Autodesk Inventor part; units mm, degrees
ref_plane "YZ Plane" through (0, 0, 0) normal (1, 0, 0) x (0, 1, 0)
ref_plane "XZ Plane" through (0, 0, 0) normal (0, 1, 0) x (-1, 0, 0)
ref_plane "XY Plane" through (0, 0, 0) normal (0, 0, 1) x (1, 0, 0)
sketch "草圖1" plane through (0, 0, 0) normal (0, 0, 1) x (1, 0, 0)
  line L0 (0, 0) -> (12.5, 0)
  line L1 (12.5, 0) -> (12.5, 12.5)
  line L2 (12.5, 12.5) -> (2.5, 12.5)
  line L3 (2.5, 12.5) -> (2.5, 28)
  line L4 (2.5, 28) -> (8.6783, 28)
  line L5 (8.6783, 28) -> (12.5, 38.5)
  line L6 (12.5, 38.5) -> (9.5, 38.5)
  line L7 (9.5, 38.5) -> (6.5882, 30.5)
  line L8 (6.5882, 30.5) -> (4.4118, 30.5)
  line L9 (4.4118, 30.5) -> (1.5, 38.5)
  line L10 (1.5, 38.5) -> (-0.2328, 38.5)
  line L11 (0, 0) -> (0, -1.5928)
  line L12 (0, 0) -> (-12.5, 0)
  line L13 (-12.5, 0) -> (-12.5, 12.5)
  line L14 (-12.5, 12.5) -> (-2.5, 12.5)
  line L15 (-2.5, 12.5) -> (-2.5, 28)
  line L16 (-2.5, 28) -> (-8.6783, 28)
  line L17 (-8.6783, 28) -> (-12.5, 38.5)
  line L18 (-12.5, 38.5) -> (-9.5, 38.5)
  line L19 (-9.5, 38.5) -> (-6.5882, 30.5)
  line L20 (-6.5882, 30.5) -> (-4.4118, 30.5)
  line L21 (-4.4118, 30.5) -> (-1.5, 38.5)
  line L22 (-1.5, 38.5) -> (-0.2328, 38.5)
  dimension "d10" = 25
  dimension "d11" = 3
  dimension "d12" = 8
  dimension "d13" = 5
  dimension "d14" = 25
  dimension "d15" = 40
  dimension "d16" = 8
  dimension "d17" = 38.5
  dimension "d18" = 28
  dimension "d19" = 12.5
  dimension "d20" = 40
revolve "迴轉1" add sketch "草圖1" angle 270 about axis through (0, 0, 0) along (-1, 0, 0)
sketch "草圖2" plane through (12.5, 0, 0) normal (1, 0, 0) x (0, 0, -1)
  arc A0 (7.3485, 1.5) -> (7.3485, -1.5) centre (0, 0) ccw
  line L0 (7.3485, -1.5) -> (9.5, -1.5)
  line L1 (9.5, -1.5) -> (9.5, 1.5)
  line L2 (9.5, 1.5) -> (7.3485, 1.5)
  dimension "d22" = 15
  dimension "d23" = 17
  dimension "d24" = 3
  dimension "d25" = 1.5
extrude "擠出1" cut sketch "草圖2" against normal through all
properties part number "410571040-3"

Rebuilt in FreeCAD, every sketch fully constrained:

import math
import FreeCAD as App
import Part
import Sketcher

V = App.Vector
Q = App.Units.Quantity

doc = App.newDocument("Part")
body = doc.addObject("PartDesign::Body", "Body")

# Sketch on XY plane
sketch1 = body.newObject("Sketcher::SketchObject", "Sketch")
sketch1.AttachmentSupport = (doc.getObject("XY_Plane"), [""])
sketch1.MapMode = "FlatFace"
sketch1.addGeometry([
    Part.LineSegment(V(-12.5, 0, 0), V(12.5, 0, 0)),  # 0
    Part.LineSegment(V(12.5, 0, 0), V(12.5, 12.5, 0)),  # 1
    Part.LineSegment(V(12.5, 12.5, 0), V(2.5, 12.5, 0)),  # 2
    Part.LineSegment(V(2.5, 12.5, 0), V(2.5, 28, 0)),  # 3
    Part.LineSegment(V(2.5, 28, 0), V(8.7, 28, 0)),  # 4
    Part.LineSegment(V(8.7, 28, 0), V(12.5, 38.5, 0)),  # 5
    Part.LineSegment(V(12.5, 38.5, 0), V(9.5, 38.5, 0)),  # 6
    Part.LineSegment(V(9.5, 38.5, 0), V(6.6, 30.5, 0)),  # 7
    Part.LineSegment(V(6.6, 30.5, 0), V(4.4, 30.5, 0)),  # 8
    Part.LineSegment(V(4.4, 30.5, 0), V(1.5, 38.5, 0)),  # 9
    Part.LineSegment(V(1.5, 38.5, 0), V(-1.5, 38.5, 0)),  # 10
    Part.LineSegment(V(-1.5, 38.5, 0), V(-4.4, 30.5, 0)),  # 11
    Part.LineSegment(V(-4.4, 30.5, 0), V(-6.6, 30.5, 0)),  # 12
    Part.LineSegment(V(-6.6, 30.5, 0), V(-9.5, 38.5, 0)),  # 13
    Part.LineSegment(V(-9.5, 38.5, 0), V(-12.5, 38.5, 0)),  # 14
    Part.LineSegment(V(-12.5, 38.5, 0), V(-8.7, 28, 0)),  # 15
    Part.LineSegment(V(-8.7, 28, 0), V(-2.5, 28, 0)),  # 16
    Part.LineSegment(V(-2.5, 28, 0), V(-2.5, 12.5, 0)),  # 17
    Part.LineSegment(V(-2.5, 12.5, 0), V(-12.5, 12.5, 0)),  # 18
    Part.LineSegment(V(-12.5, 12.5, 0), V(-12.5, 0, 0)),  # 19
], False)
sketch1.addConstraint([
    Sketcher.Constraint("Coincident", 0, 2, 1, 1),
    Sketcher.Constraint("Coincident", 1, 2, 2, 1),
    Sketcher.Constraint("Coincident", 2, 2, 3, 1),
    Sketcher.Constraint("Coincident", 3, 2, 4, 1),
    Sketcher.Constraint("Coincident", 4, 2, 5, 1),
    Sketcher.Constraint("Coincident", 5, 2, 6, 1),
    Sketcher.Constraint("Coincident", 6, 2, 7, 1),
    Sketcher.Constraint("Coincident", 7, 2, 8, 1),
    Sketcher.Constraint("Coincident", 8, 2, 9, 1),
    Sketcher.Constraint("Coincident", 9, 2, 10, 1),
    Sketcher.Constraint("Coincident", 10, 2, 11, 1),
    Sketcher.Constraint("Coincident", 11, 2, 12, 1),
    Sketcher.Constraint("Coincident", 12, 2, 13, 1),
    Sketcher.Constraint("Coincident", 13, 2, 14, 1),
    Sketcher.Constraint("Coincident", 14, 2, 15, 1),
    Sketcher.Constraint("Coincident", 15, 2, 16, 1),
    Sketcher.Constraint("Coincident", 16, 2, 17, 1),
    Sketcher.Constraint("Coincident", 17, 2, 18, 1),
    Sketcher.Constraint("Coincident", 18, 2, 19, 1),
    Sketcher.Constraint("Coincident", 19, 2, 0, 1),
    Sketcher.Constraint("Horizontal", 0),
    Sketcher.Constraint("Vertical", 1),
    Sketcher.Constraint("Horizontal", 2),
    Sketcher.Constraint("Vertical", 3),
    Sketcher.Constraint("Horizontal", 4),
    Sketcher.Constraint("Horizontal", 6),
    Sketcher.Constraint("Horizontal", 8),
    Sketcher.Constraint("Horizontal", 10),
    Sketcher.Constraint("Horizontal", 12),
    Sketcher.Constraint("Horizontal", 14),
    Sketcher.Constraint("Horizontal", 16),
    Sketcher.Constraint("Vertical", 17),
    Sketcher.Constraint("Horizontal", 18),
    Sketcher.Constraint("Vertical", 19),
    Sketcher.Constraint("Symmetric", 0, 2, 19, 2, -1, 1),
    Sketcher.Constraint("Symmetric", 8, 2, 11, 2, -2),
    Sketcher.Constraint("Symmetric", 6, 2, 13, 2, -2),
    Sketcher.Constraint("Symmetric", 4, 2, 15, 2, -2),
    Sketcher.Constraint("Symmetric", 2, 2, 17, 2, -2),
    Sketcher.Constraint("Parallel", 5, 7),
    Sketcher.Constraint("Parallel", 7, 11),
    Sketcher.Constraint("Parallel", 9, 13),
    Sketcher.Constraint("Parallel", 13, 15),
    Sketcher.Constraint("Horizontal", 6, 2, 9, 2),
    Sketcher.Constraint("Vertical", 1, 2, 5, 2),
    Sketcher.Constraint("Vertical", 14, 2, 18, 2),
    Sketcher.Constraint("Equal", 6, 10),
    Sketcher.Constraint("DistanceX", 0, 1, 0, 2, Q("25 mm")),
    Sketcher.Constraint("DistanceX", 6, 2, 6, 1, Q("3 mm")),
    Sketcher.Constraint("DistanceY", 1, 1, 1, 2, Q("12.5 mm")),
    Sketcher.Constraint("DistanceY", -1, 1, 3, 2, Q("28 mm")),
    Sketcher.Constraint("DistanceY", 7, 2, 6, 2, Q("8 mm")),
    Sketcher.Constraint("DistanceX", 16, 2, 3, 2, Q("5 mm")),
    Sketcher.Constraint("DistanceY", -1, 1, 5, 2, Q("38.5 mm")),
    Sketcher.Constraint("Angle", 5, Q("70 deg")),
])
revolution = body.newObject("PartDesign::Revolution", "Revolution")
revolution.Profile = sketch1
revolution.ReferenceAxis = (sketch1, ["H_Axis"])
revolution.Angle = 270
revolution.Reversed = True

# Sketch on YZ plane
sketch2 = body.newObject("Sketcher::SketchObject", "Sketch001")
sketch2.AttachmentSupport = (doc.getObject("YZ_Plane"), [""])
sketch2.MapMode = "FlatFace"
sketch2.AttachmentOffset = App.Placement(V(0, 0, 12.5), App.Rotation())
sketch2.addGeometry([
    Part.LineSegment(V(1.5, -9.5, 0), V(1.5, -7.3, 0)),
    Part.ArcOfCircle(Part.Circle(V(0, 0, 0), V(0, 0, 1), 7.5), math.radians(-78), math.radians(258)),
    Part.LineSegment(V(-1.5, -7.3, 0), V(-1.5, -9.5, 0)),
    Part.LineSegment(V(-1.5, -9.5, 0), V(1.5, -9.5, 0)),
], False)
sketch2.addConstraint([
    Sketcher.Constraint("Coincident", 0, 2, 1, 1),
    Sketcher.Constraint("Coincident", 1, 2, 2, 1),
    Sketcher.Constraint("Coincident", 2, 2, 3, 1),
    Sketcher.Constraint("Coincident", 3, 2, 0, 1),
    Sketcher.Constraint("Vertical", 0),
    Sketcher.Constraint("Vertical", 2),
    Sketcher.Constraint("Horizontal", 3),
    Sketcher.Constraint("Coincident", 1, 3, -1, 1),
    Sketcher.Constraint("Horizontal", 0, 2, 1, 2),
    Sketcher.Constraint("Radius", 1, Q("7.5 mm")),
    Sketcher.Constraint("DistanceX", 3, 1, 3, 2, Q("3 mm")),
    Sketcher.Constraint("DistanceY", 2, 2, -1, 1, Q("9.5 mm")),
])
pocket1 = body.newObject("PartDesign::Pocket", "Pocket")
pocket1.Profile = sketch2
pocket1.Type = "ThroughAll"

doc.recompute()
